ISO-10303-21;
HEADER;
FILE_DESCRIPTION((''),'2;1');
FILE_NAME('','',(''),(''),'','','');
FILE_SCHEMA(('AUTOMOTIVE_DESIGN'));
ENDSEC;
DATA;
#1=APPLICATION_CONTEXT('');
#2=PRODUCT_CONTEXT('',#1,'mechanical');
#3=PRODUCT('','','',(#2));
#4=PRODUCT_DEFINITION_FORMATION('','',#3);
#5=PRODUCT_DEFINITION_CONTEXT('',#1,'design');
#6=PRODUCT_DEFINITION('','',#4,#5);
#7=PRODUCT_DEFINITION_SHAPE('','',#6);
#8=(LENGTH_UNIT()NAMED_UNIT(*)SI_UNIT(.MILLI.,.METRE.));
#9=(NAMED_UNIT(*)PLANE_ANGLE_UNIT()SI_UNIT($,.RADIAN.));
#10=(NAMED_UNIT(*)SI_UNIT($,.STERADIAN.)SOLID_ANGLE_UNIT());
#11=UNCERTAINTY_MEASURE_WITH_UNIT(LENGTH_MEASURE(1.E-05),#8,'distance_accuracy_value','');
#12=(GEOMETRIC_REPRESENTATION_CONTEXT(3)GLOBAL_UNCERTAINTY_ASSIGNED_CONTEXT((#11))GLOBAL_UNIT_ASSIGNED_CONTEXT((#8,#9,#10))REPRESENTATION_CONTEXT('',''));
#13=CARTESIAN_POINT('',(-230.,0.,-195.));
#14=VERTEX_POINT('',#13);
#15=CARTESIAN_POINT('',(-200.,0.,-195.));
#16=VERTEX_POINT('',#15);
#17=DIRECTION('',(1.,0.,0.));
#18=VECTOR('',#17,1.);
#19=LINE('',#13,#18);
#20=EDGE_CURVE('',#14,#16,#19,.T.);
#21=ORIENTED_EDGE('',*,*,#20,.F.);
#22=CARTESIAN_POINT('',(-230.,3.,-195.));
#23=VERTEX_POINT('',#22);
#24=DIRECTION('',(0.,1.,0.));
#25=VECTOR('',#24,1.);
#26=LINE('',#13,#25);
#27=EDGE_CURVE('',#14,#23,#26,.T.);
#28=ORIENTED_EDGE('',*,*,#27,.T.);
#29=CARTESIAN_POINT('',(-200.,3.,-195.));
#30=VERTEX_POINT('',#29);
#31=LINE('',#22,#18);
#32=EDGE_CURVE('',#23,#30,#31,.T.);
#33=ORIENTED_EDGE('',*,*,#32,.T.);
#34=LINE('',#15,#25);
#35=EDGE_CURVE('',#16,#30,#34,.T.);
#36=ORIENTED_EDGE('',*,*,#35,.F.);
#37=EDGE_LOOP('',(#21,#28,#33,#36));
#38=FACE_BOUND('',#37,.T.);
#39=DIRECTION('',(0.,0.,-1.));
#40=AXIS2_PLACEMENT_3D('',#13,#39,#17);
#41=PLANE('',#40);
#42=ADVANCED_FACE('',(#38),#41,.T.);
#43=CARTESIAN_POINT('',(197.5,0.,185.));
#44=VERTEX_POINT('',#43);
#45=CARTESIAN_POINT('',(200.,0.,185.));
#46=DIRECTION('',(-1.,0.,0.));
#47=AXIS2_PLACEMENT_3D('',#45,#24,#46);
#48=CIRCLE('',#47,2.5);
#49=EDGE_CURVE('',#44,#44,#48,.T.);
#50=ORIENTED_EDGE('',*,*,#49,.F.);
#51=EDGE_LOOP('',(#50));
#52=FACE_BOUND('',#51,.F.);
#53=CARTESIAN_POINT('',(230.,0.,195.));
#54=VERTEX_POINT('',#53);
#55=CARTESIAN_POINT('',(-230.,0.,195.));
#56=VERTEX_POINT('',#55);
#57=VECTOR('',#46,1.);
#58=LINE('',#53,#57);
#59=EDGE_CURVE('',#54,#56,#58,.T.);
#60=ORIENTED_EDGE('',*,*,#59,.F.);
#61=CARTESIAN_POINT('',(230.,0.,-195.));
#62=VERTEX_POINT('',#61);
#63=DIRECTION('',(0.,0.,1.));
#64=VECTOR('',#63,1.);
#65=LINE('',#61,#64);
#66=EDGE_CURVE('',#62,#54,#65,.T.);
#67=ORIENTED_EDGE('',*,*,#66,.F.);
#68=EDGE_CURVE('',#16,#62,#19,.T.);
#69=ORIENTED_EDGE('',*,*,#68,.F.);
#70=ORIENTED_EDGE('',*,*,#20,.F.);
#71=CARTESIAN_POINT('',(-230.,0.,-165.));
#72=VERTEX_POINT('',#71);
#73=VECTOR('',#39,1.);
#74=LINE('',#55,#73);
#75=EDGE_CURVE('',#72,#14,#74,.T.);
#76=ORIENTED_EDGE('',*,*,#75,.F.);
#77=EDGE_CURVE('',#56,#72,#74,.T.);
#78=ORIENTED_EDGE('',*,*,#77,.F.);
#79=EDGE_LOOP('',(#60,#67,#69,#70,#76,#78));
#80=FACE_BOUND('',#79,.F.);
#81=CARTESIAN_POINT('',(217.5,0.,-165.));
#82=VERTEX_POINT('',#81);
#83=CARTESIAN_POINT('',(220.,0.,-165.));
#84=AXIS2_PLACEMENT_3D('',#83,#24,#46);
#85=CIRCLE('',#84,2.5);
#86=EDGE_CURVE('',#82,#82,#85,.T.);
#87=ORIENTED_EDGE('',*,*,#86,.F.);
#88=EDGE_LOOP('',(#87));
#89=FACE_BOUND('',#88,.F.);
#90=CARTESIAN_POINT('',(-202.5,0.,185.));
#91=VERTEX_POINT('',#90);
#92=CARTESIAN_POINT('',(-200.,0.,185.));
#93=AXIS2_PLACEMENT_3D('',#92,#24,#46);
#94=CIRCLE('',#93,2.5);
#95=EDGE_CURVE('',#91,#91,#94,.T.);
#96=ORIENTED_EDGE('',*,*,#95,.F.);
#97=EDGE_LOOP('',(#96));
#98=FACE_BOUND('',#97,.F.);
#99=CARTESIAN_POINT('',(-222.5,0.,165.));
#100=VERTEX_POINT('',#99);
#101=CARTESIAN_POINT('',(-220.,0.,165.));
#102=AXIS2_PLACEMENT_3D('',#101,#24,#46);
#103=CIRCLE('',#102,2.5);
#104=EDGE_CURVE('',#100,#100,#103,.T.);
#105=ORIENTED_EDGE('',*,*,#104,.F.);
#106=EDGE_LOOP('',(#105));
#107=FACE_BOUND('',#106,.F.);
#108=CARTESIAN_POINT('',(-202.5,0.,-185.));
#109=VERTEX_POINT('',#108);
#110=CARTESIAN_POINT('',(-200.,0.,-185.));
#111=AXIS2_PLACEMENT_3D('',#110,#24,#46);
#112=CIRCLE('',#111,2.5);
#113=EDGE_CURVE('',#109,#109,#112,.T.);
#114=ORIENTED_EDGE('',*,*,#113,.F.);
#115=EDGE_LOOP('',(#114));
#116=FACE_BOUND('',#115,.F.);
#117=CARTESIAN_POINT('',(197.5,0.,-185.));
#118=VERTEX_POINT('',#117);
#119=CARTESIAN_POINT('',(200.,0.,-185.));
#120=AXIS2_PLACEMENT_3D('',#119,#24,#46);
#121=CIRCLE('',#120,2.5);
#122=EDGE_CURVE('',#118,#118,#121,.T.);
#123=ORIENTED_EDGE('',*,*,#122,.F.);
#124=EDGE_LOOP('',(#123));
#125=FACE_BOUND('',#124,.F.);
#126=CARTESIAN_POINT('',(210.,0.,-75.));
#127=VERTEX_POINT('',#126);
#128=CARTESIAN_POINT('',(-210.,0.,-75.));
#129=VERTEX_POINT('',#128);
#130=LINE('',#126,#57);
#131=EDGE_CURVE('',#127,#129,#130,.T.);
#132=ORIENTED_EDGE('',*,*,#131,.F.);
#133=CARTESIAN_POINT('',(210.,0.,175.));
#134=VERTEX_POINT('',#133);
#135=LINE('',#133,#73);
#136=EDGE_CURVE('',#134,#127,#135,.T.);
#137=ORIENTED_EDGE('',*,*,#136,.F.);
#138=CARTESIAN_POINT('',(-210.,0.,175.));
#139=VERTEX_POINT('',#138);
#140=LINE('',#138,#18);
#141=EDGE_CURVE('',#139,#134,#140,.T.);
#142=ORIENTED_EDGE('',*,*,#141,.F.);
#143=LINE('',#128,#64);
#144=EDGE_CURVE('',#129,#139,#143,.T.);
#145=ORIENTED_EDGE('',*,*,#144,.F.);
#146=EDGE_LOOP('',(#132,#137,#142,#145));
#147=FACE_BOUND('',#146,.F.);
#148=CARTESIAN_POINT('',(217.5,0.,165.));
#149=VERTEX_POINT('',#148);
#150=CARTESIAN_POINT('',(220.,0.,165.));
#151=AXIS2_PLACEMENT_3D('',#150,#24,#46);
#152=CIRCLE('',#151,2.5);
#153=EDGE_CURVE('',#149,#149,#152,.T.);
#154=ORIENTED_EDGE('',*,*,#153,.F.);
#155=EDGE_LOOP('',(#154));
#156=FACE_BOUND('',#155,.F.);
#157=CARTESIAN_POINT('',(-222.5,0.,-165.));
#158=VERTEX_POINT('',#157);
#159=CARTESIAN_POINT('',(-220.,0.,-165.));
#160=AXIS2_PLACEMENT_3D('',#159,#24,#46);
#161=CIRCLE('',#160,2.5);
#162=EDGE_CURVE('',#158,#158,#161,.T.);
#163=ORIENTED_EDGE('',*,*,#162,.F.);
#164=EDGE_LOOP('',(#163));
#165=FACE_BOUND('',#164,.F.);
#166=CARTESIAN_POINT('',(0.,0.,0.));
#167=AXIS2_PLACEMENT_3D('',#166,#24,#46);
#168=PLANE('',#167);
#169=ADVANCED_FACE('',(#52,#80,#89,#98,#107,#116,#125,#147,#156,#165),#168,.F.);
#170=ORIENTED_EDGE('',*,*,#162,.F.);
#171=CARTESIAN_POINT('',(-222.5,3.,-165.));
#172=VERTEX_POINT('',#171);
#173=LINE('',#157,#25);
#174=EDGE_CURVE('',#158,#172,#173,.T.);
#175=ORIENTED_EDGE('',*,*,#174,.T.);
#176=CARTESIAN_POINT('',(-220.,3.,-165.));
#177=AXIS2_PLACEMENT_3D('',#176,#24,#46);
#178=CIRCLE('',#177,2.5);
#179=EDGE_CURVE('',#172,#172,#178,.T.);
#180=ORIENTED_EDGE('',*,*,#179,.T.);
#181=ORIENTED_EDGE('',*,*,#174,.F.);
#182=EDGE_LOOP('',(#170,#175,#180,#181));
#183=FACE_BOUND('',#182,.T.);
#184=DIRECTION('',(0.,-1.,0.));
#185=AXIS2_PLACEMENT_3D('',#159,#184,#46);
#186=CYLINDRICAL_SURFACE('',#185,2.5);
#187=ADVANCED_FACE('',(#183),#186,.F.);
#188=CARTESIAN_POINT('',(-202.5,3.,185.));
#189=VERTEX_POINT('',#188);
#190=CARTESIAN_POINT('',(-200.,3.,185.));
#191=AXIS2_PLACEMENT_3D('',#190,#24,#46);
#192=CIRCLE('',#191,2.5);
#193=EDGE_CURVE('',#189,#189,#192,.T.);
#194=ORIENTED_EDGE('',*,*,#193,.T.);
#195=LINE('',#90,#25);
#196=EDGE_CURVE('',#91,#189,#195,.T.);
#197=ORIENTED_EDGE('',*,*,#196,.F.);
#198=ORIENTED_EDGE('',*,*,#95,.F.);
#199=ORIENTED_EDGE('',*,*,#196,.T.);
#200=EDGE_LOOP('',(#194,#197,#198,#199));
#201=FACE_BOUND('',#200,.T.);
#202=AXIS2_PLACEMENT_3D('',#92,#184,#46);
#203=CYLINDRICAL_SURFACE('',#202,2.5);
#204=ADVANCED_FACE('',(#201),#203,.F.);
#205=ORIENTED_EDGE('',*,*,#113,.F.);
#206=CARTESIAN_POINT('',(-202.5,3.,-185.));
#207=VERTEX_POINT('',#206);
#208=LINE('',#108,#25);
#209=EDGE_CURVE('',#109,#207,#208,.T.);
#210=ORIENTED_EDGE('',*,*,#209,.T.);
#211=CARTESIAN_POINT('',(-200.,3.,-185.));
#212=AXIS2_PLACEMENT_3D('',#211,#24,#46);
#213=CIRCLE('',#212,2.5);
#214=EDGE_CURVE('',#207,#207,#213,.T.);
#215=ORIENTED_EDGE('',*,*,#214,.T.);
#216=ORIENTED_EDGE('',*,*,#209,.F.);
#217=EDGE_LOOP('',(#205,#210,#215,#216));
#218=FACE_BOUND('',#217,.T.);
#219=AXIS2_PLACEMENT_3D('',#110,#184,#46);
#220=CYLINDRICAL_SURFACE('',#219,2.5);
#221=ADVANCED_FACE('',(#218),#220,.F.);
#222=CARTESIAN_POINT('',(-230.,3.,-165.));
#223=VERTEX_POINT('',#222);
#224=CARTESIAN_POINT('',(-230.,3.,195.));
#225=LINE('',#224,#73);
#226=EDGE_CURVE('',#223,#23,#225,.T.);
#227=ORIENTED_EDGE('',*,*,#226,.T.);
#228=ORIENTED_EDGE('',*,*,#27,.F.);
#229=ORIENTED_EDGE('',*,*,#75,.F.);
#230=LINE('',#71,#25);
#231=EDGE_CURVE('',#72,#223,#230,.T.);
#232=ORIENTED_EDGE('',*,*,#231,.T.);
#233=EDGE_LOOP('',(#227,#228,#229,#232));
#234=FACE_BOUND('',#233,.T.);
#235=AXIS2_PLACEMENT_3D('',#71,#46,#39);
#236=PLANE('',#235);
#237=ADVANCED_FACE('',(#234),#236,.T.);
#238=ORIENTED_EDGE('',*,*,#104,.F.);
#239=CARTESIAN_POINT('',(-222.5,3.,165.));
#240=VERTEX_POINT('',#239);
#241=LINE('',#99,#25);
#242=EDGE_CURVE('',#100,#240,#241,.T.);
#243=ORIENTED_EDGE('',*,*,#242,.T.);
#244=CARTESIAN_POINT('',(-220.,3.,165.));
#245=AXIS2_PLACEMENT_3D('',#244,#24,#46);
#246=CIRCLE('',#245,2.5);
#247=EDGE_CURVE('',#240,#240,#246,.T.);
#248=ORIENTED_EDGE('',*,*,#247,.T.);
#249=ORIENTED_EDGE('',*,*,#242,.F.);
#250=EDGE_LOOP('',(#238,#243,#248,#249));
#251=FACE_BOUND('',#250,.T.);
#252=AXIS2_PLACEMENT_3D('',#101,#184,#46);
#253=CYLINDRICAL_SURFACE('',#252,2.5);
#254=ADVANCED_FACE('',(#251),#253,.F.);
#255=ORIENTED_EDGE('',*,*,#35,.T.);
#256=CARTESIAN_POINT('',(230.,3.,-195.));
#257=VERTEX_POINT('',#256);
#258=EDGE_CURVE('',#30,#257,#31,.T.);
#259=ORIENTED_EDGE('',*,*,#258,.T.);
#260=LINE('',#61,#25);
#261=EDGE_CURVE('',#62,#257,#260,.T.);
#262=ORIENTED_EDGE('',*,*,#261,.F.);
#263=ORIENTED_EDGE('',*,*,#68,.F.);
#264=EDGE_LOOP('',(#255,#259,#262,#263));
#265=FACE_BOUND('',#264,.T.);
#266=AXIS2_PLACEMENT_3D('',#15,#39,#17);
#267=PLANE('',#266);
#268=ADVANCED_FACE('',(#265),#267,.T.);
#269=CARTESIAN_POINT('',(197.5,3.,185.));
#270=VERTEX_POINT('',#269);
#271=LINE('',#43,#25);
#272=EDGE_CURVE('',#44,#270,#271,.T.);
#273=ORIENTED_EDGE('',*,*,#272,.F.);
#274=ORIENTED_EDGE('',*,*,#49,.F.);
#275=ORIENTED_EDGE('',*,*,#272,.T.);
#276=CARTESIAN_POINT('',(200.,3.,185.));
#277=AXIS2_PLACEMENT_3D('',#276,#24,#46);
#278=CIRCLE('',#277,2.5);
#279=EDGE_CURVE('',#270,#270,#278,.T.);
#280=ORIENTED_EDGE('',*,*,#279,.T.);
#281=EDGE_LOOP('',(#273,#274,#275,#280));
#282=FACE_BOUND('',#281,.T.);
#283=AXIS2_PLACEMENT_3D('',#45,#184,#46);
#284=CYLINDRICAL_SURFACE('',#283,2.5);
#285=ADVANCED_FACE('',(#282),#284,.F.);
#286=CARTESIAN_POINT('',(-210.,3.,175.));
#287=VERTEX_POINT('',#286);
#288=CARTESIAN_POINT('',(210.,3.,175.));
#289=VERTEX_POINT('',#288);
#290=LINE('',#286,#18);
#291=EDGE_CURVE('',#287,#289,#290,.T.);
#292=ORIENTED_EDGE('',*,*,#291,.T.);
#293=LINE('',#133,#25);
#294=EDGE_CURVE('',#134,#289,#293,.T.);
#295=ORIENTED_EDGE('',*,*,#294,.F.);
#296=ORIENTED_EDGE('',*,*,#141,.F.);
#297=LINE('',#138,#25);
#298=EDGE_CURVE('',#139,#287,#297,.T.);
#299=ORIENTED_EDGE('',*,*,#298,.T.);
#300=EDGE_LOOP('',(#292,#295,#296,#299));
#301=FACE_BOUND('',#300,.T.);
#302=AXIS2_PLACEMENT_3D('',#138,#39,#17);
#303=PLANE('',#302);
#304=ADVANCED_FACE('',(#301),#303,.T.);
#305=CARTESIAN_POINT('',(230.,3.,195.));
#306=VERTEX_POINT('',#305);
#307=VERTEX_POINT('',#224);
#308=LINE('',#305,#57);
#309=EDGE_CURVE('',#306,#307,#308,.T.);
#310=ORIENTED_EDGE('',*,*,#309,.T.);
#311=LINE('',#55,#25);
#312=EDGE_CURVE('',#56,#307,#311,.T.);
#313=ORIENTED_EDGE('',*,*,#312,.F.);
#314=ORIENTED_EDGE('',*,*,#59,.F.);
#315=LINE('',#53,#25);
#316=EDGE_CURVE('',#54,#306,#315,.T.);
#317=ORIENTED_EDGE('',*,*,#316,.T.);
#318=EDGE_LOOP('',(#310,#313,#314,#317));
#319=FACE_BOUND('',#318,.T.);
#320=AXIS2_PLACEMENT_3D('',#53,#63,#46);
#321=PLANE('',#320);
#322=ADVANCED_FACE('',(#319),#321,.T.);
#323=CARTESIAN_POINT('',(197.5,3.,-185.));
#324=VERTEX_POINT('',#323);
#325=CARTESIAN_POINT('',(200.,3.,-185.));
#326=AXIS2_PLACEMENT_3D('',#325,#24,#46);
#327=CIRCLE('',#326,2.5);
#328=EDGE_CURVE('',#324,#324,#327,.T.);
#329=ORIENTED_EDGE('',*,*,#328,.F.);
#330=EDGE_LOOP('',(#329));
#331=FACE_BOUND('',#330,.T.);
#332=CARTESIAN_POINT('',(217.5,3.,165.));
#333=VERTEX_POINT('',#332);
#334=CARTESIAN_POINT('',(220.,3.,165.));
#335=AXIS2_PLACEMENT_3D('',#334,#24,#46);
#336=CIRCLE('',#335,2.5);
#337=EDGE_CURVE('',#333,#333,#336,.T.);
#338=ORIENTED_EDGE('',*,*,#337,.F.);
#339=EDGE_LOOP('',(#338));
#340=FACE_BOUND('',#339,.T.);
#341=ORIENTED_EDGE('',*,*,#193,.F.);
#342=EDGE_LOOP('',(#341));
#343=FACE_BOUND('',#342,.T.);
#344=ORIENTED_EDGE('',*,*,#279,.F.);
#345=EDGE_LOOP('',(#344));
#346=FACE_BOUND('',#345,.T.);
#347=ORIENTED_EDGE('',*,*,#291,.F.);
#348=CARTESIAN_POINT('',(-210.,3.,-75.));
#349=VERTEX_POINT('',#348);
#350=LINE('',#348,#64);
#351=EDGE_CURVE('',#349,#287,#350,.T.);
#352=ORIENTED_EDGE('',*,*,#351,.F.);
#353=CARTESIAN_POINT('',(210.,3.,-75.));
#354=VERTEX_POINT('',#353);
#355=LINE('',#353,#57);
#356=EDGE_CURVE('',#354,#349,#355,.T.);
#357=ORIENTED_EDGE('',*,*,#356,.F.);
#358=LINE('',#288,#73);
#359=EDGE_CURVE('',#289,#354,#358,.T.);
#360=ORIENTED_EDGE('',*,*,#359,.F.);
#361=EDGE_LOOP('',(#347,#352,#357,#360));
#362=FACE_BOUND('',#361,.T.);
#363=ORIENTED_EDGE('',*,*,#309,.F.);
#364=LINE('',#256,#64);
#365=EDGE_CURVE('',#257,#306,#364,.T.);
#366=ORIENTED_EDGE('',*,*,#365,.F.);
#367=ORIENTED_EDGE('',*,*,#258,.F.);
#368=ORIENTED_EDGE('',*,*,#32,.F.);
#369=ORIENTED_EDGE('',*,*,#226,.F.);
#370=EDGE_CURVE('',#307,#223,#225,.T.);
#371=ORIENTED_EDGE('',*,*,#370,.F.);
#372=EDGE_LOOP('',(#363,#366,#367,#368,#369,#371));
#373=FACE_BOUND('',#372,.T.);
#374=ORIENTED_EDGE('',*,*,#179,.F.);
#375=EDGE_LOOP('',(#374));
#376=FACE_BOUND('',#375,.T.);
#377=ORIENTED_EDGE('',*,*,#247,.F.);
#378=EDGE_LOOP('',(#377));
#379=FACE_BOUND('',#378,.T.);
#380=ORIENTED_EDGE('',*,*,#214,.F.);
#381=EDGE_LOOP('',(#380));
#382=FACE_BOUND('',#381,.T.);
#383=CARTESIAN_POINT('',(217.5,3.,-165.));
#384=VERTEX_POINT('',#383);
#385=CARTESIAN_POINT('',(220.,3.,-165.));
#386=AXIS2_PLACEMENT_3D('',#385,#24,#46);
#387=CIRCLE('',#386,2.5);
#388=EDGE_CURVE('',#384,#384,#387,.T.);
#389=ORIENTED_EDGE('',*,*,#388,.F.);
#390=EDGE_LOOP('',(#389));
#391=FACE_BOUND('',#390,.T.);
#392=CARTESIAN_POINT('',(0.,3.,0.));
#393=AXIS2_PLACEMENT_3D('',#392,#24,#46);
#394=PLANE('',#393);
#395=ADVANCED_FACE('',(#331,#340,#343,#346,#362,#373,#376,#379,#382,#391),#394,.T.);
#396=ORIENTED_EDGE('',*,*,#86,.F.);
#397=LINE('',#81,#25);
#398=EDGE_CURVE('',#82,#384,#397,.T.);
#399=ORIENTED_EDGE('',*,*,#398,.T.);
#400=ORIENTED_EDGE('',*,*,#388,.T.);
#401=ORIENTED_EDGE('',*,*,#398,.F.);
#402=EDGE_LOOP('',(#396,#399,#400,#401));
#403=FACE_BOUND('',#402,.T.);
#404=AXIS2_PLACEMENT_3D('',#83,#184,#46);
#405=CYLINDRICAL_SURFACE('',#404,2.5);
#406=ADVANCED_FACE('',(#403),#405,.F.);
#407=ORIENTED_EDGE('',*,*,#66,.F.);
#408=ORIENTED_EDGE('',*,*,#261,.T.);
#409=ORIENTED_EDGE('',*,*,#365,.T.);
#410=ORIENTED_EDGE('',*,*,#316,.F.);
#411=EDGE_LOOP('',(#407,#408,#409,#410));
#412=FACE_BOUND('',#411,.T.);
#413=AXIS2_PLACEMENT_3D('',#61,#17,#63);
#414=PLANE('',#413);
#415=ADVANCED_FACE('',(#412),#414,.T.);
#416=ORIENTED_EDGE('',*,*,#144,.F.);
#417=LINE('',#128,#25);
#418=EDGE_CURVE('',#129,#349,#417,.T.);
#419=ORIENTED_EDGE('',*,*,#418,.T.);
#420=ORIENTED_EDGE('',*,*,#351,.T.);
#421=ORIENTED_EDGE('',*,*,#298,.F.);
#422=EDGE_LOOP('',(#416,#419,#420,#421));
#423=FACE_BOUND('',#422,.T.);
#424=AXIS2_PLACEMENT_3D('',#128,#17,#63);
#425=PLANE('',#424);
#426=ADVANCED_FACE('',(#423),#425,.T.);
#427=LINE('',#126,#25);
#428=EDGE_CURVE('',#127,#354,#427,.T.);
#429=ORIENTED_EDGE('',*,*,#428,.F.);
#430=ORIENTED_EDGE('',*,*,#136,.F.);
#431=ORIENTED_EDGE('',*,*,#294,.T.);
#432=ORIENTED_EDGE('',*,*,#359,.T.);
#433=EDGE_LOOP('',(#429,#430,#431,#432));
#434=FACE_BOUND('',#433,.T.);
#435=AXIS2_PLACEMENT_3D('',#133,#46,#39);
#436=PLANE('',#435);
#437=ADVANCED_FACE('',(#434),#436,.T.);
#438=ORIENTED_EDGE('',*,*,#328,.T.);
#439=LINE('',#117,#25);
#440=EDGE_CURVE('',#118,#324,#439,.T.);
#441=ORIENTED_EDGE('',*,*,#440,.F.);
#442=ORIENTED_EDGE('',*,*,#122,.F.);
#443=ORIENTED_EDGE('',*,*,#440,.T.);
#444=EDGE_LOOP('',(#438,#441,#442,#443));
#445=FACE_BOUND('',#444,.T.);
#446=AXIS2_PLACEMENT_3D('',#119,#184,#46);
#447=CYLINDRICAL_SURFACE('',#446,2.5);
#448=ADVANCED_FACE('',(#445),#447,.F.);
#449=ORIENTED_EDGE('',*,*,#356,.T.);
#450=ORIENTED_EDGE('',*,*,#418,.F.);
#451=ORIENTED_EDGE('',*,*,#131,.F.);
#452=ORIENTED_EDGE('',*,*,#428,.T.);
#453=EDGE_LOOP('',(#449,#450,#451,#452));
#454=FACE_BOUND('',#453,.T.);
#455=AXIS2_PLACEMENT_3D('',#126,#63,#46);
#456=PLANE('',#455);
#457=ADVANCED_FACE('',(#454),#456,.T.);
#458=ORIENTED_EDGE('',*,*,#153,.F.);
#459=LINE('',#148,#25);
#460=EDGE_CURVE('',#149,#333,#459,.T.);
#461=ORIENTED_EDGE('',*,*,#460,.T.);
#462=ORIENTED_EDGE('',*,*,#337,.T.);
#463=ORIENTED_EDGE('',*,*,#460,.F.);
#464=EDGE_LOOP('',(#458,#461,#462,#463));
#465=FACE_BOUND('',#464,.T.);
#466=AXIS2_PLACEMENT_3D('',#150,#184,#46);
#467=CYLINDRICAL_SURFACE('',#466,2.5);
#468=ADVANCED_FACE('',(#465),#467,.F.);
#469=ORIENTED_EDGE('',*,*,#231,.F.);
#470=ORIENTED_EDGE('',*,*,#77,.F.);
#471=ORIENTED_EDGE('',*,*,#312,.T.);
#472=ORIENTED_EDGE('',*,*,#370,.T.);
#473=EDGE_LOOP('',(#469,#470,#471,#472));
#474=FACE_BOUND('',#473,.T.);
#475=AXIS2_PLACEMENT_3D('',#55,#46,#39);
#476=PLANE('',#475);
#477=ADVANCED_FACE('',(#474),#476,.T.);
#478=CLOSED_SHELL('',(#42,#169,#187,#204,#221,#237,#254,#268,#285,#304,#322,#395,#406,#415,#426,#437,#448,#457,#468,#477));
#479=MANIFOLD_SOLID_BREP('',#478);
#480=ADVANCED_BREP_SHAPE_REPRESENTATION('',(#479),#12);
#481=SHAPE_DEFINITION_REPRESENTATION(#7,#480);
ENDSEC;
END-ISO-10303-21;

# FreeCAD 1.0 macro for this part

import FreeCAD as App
import Part
import Sketcher
Q = App.Units.Quantity

doc = App.newDocument("Part")
params = doc.addObject("Spreadsheet::Sheet", "Params")
for row, (alias, value) in enumerate([
    ("sketch1_width", "460 mm"),
    ("sketch1_height", "390 mm"),
    ("sketch1_height2", "250 mm"),
    ("sketch1_diameter", "5 mm"),
    ("sketch1_width2", "420 mm"),
    ("pad1_length", "3 mm"),
], start=1):
    params.set(f"A{row}", alias)
    params.set(f"B{row}", "=" + value)
    params.setAlias(f"B{row}", alias)

body = doc.addObject("PartDesign::Body", "Body")

sketch1 = body.newObject("Sketcher::SketchObject", "Sketch")
sketch1.AttachmentSupport = (doc.getObject("XZ_Plane"), [""])
sketch1.MapMode = "FlatFace"
sketch1.addGeometry([
    Part.LineSegment(App.Vector(-230, 195, 0), App.Vector(230, 195, 0)),
    Part.LineSegment(App.Vector(230, 195, 0), App.Vector(230, -195, 0)),
    Part.LineSegment(App.Vector(230, -195, 0), App.Vector(-230, -195, 0)),
    Part.LineSegment(App.Vector(-230, -195, 0), App.Vector(-230, 195, 0)),
    Part.Circle(App.Vector(200, -185, 0), App.Vector(0, 0, 1), 2.5),
    Part.Circle(App.Vector(220, -165, 0), App.Vector(0, 0, 1), 2.5),
    Part.Circle(App.Vector(-200, -185, 0), App.Vector(0, 0, 1), 2.5),
    Part.Circle(App.Vector(-220, -165, 0), App.Vector(0, 0, 1), 2.5),
    Part.Circle(App.Vector(220, 165, 0), App.Vector(0, 0, 1), 2.5),
    Part.Circle(App.Vector(200, 185, 0), App.Vector(0, 0, 1), 2.5),
    Part.LineSegment(App.Vector(-210, 175, 0), App.Vector(-210, -75, 0)),
    Part.LineSegment(App.Vector(-210, -75, 0), App.Vector(210, -75, 0)),
    Part.LineSegment(App.Vector(210, -75, 0), App.Vector(210, 175, 0)),
    Part.LineSegment(App.Vector(210, 175, 0), App.Vector(-210, 175, 0)),
    Part.Circle(App.Vector(-220, 165, 0), App.Vector(0, 0, 1), 2.5),
    Part.Circle(App.Vector(-200, 185, 0), App.Vector(0, 0, 1), 2.5),
], False)
sketch1.addConstraint([
    Sketcher.Constraint("Coincident", 0, 2, 1, 1),
    Sketcher.Constraint("Coincident", 1, 2, 2, 1),
    Sketcher.Constraint("Coincident", 2, 2, 3, 1),
    Sketcher.Constraint("Coincident", 3, 2, 0, 1),
    Sketcher.Constraint("Coincident", 10, 2, 11, 1),
    Sketcher.Constraint("Coincident", 11, 2, 12, 1),
    Sketcher.Constraint("Coincident", 12, 2, 13, 1),
    Sketcher.Constraint("Coincident", 13, 2, 10, 1),
    Sketcher.Constraint("Horizontal", 0),
    Sketcher.Constraint("Vertical", 1),
    Sketcher.Constraint("Horizontal", 2),
    Sketcher.Constraint("Vertical", 3),
    Sketcher.Constraint("Vertical", 10),
    Sketcher.Constraint("Horizontal", 11),
    Sketcher.Constraint("Vertical", 12),
    Sketcher.Constraint("Horizontal", 13),
    Sketcher.Constraint("Equal", 4, 5),
    Sketcher.Constraint("Equal", 5, 6),
    Sketcher.Constraint("Equal", 6, 7),
    Sketcher.Constraint("Equal", 7, 8),
    Sketcher.Constraint("Equal", 8, 9),
    Sketcher.Constraint("Equal", 9, 14),
    Sketcher.Constraint("Equal", 14, 15),
    Sketcher.Constraint("Symmetric", 7, 3, 8, 3, -1, 1),
    Sketcher.Constraint("Symmetric", 6, 3, 9, 3, -1, 1),
    Sketcher.Constraint("Symmetric", 5, 3, 14, 3, -1, 1),
    Sketcher.Constraint("Symmetric", 4, 3, 15, 3, -1, 1),
    Sketcher.Constraint("Symmetric", 0, 2, 2, 2, -1, 1),
    Sketcher.Constraint("Symmetric", 4, 3, 6, 3, -2),
    Sketcher.Constraint("Symmetric", 5, 3, 7, 3, -2),
    Sketcher.Constraint("DistanceX", 0, 1, 0, 2, Q("460 mm")),
    Sketcher.Constraint("DistanceY", 1, 2, 1, 1, Q("390 mm")),
    Sketcher.Constraint("DistanceY", 10, 2, 10, 1, Q("250 mm")),
    Sketcher.Constraint("Diameter", 4, Q("5 mm")),
    Sketcher.Constraint("DistanceY", 8, 3, 0, 2, Q("30 mm")),
    Sketcher.Constraint("DistanceX", 9, 3, 0, 2, Q("30 mm")),
    Sketcher.Constraint("DistanceX", 11, 1, 11, 2, Q("420 mm")),
    Sketcher.Constraint("DistanceY", 4, 3, -1, 1, Q("185 mm")),
    Sketcher.Constraint("DistanceX", -1, 1, 5, 3, Q("220 mm")),
    Sketcher.Constraint("DistanceX", 10, 2, -1, 1, Q("210 mm")),
    Sketcher.Constraint("DistanceY", 10, 2, -1, 1, Q("75 mm")),
])
sketch1.setExpression("Constraints[30]", "Params.sketch1_width")
sketch1.setExpression("Constraints[31]", "Params.sketch1_height")
sketch1.setExpression("Constraints[32]", "Params.sketch1_height2")
sketch1.setExpression("Constraints[33]", "Params.sketch1_diameter")
sketch1.setExpression("Constraints[36]", "Params.sketch1_width2")
pad1 = body.newObject("PartDesign::Pad", "Pad")
pad1.Profile = sketch1
pad1.setExpression("Length", "Params.pad1_length")
pad1.Reversed = True

doc.recompute()
